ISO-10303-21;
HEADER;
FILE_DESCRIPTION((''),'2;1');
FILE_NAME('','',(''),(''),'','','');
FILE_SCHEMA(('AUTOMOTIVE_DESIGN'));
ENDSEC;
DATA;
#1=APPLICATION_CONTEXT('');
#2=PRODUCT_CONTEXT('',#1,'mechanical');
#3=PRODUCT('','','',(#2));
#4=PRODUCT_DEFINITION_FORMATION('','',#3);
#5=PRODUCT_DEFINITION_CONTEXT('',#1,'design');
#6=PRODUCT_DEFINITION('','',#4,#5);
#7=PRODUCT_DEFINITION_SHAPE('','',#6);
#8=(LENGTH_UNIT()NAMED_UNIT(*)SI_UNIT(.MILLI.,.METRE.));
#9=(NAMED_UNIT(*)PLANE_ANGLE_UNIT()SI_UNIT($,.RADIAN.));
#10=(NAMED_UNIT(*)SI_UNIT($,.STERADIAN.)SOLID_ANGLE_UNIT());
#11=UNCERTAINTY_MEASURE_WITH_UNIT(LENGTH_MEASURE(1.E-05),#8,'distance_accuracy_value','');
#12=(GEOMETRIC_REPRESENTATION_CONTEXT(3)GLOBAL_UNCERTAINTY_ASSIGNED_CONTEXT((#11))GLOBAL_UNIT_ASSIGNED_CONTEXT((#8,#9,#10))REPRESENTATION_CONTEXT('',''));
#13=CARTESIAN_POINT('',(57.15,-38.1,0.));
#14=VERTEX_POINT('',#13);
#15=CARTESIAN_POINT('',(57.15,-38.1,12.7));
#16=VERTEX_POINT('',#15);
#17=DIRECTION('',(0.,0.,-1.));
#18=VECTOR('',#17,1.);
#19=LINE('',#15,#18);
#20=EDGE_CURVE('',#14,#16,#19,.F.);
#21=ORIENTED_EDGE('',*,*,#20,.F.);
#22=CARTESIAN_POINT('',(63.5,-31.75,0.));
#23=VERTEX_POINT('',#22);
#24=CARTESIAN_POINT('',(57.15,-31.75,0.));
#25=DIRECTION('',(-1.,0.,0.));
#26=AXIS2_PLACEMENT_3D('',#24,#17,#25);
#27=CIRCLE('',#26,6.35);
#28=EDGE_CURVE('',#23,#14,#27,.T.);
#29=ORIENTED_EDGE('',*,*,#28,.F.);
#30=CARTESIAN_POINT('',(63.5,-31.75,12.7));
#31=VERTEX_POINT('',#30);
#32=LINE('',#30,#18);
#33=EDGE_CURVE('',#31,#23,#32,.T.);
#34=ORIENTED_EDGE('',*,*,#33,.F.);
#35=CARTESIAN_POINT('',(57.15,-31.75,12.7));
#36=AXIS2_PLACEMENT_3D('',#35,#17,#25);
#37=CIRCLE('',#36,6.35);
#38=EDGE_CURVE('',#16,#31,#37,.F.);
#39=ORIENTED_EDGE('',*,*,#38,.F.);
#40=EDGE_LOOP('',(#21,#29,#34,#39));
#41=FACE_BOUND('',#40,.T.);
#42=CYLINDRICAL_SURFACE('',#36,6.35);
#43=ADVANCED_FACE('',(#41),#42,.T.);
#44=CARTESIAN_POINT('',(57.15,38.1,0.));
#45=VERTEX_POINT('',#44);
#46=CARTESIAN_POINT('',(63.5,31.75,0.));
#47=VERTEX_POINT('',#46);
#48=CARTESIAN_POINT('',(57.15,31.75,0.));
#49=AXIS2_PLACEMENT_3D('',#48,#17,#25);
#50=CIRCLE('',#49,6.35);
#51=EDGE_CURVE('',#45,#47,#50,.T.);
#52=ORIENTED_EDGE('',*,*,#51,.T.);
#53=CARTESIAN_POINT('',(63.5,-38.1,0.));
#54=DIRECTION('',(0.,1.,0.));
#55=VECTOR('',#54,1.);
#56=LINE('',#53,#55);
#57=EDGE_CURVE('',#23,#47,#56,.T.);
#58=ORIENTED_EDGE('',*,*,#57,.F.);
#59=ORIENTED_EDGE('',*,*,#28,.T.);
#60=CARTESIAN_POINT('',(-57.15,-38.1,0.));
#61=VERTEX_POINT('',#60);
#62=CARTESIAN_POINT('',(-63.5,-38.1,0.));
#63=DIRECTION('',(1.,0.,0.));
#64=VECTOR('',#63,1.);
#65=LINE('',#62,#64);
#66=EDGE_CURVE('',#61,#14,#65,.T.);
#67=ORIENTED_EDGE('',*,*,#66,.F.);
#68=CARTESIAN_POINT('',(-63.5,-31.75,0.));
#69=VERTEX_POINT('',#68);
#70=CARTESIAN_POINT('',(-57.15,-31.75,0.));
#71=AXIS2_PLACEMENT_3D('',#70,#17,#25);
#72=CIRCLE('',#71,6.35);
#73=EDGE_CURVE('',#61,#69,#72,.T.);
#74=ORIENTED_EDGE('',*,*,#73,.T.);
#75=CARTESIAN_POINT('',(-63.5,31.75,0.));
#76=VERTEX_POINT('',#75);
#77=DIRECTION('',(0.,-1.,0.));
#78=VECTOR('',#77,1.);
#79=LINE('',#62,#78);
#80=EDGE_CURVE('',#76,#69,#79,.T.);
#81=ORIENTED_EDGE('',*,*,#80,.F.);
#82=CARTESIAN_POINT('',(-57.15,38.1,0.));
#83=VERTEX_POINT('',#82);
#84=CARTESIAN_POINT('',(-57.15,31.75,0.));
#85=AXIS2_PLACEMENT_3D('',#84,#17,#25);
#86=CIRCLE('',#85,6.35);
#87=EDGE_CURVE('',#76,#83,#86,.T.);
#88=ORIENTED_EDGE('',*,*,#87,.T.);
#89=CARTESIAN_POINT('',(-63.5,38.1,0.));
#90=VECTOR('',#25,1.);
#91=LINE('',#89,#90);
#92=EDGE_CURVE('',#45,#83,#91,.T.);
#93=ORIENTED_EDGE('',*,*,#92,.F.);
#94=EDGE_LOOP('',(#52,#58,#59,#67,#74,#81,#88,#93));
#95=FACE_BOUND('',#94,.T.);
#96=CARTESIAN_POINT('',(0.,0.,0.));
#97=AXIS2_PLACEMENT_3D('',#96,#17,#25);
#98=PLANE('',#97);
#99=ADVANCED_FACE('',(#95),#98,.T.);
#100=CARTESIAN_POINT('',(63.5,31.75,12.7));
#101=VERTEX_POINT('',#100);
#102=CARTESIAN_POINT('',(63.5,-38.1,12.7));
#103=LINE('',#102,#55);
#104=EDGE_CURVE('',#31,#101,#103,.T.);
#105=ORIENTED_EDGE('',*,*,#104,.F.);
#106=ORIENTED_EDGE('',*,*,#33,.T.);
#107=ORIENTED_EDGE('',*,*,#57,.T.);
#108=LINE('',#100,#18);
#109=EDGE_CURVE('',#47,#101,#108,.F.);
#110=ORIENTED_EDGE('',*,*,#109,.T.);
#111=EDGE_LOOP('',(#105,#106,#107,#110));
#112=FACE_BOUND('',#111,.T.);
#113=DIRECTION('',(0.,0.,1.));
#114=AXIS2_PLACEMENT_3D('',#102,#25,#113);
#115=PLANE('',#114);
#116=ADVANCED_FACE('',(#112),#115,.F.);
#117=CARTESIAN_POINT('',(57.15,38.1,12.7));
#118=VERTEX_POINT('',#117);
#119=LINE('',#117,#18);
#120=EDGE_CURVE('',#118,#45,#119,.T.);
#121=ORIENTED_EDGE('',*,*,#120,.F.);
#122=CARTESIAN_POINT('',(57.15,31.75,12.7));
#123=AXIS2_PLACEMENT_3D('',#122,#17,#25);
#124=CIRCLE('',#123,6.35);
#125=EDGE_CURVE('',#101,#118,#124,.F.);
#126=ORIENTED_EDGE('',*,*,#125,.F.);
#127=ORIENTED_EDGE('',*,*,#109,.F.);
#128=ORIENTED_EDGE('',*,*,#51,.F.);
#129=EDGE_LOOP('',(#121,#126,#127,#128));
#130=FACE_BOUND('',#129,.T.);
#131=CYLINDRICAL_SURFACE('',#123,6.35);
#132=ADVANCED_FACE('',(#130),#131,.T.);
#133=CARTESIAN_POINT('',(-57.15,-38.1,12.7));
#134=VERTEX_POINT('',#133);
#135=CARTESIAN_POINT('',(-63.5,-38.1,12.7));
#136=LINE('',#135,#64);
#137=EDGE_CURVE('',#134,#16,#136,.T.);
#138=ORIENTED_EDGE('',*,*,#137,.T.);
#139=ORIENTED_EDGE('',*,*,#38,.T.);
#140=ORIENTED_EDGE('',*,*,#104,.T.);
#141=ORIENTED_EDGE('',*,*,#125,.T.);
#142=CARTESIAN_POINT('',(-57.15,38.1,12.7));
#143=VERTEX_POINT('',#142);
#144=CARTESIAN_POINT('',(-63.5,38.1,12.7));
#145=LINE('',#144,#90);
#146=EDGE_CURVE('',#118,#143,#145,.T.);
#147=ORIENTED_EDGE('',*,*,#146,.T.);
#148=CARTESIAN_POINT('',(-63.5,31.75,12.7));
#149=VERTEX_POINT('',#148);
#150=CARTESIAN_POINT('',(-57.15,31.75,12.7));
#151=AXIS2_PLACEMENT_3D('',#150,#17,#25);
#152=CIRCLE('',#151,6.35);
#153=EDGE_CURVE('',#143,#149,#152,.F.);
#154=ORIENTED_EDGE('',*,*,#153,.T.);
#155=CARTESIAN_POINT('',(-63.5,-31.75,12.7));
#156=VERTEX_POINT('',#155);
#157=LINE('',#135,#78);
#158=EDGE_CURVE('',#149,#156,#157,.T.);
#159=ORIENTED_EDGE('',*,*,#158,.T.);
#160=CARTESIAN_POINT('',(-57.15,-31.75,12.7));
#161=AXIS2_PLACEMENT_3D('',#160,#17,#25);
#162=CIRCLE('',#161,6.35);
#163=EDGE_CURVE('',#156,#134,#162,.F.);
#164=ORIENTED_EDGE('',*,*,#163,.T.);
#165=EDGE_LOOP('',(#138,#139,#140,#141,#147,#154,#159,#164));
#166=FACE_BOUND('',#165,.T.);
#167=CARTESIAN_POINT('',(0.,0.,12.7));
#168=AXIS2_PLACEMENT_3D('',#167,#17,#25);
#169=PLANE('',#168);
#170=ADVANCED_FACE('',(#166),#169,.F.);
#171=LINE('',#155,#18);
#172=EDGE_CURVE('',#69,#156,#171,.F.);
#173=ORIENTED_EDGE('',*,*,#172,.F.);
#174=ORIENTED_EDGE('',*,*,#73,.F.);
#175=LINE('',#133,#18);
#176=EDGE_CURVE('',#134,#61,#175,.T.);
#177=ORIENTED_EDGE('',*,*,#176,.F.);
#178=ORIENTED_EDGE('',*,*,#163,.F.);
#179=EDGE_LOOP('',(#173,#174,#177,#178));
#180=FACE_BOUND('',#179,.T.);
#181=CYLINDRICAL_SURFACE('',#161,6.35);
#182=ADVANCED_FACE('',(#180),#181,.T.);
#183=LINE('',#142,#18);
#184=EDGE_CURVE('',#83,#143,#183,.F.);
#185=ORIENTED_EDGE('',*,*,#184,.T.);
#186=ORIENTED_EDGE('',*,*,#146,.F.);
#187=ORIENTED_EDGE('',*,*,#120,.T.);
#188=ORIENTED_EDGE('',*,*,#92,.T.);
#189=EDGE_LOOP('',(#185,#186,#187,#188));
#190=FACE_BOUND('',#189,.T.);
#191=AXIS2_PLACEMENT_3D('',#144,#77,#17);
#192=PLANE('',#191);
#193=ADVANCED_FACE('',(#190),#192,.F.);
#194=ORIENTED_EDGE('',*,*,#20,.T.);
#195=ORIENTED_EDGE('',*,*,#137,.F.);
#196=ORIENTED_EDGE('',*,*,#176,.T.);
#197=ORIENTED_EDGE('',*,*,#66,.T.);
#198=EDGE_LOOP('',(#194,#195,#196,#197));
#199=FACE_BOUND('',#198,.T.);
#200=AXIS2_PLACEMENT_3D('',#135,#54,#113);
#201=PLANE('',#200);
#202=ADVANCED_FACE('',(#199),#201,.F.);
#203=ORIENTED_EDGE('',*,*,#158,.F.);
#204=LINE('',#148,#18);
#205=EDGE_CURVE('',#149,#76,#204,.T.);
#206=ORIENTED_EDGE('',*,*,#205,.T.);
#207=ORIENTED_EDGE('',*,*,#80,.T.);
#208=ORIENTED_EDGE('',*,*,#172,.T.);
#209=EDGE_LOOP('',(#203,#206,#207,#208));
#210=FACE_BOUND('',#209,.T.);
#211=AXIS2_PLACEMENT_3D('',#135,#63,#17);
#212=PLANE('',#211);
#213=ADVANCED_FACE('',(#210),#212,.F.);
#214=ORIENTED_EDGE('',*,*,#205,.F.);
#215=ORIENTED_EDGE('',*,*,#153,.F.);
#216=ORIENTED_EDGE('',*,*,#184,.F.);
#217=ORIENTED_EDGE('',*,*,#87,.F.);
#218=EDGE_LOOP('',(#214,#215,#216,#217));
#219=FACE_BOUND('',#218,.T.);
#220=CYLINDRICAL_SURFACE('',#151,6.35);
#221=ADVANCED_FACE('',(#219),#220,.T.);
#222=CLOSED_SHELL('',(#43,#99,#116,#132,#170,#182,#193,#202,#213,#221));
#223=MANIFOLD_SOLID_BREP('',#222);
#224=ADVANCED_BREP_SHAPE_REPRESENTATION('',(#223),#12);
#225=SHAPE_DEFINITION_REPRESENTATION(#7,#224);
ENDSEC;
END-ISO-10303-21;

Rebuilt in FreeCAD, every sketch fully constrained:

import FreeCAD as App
import Part
import Sketcher
from FreeCAD import Vector
Q = App.Units.Quantity


def edges_at(feature, points):
    """Names of the edges that pass closest to the given points."""
    edges = feature.Shape.Edges
    near = lambda p: min(range(len(edges)), key=lambda i: edges[i].distToShape(Part.Vertex(*p))[0])
    return sorted({f"Edge{near(p) + 1}" for p in points})

doc = App.newDocument("Part")
body = doc.addObject("PartDesign::Body", "Body")

# Sketch on XY plane
sketch1 = body.newObject("Sketcher::SketchObject", "Sketch")
sketch1.AttachmentSupport = (doc.getObject("XY_Plane"), [""])
sketch1.MapMode = "FlatFace"
sketch1.addGeometry(Part.LineSegment(Vector(-64, 38, 0), Vector(-64, -38, 0)), False)
sketch1.addGeometry(Part.LineSegment(Vector(-64, -38, 0), Vector(64, -38, 0)), False)
sketch1.addGeometry(Part.LineSegment(Vector(64, -38, 0), Vector(64, 38, 0)), False)
sketch1.addGeometry(Part.LineSegment(Vector(64, 38, 0), Vector(-64, 38, 0)), False)
sketch1.addConstraint(Sketcher.Constraint("Coincident", 0, 2, 1, 1))
sketch1.addConstraint(Sketcher.Constraint("Coincident", 1, 2, 2, 1))
sketch1.addConstraint(Sketcher.Constraint("Coincident", 2, 2, 3, 1))
sketch1.addConstraint(Sketcher.Constraint("Coincident", 3, 2, 0, 1))
sketch1.addConstraint(Sketcher.Constraint("Vertical", 0))
sketch1.addConstraint(Sketcher.Constraint("Horizontal", 1))
sketch1.addConstraint(Sketcher.Constraint("Vertical", 2))
sketch1.addConstraint(Sketcher.Constraint("Horizontal", 3))
sketch1.addConstraint(Sketcher.Constraint("Symmetric", 0, 2, 2, 2, -1, 1))
sketch1.addConstraint(Sketcher.Constraint("DistanceX", 1, 1, 1, 2, Q("5 in")))
sketch1.addConstraint(Sketcher.Constraint("DistanceY", 0, 2, 0, 1, Q("3 in")))
pad1 = body.newObject("PartDesign::Pad", "Pad")
pad1.Profile = sketch1
pad1.Length = Q("0.5 in")
doc.recompute()

fillet = body.newObject("PartDesign::Fillet", "Fillet")
fillet.Base = (pad1, edges_at(pad1, [
    (63.5, -38.1, 6.35),
    (-63.5, -38.1, 6.35),
    (-63.5, 38.1, 6.35),
    (63.5, 38.1, 6.35),
]))
fillet.Radius = Q("0.25 in")

doc.recompute()
